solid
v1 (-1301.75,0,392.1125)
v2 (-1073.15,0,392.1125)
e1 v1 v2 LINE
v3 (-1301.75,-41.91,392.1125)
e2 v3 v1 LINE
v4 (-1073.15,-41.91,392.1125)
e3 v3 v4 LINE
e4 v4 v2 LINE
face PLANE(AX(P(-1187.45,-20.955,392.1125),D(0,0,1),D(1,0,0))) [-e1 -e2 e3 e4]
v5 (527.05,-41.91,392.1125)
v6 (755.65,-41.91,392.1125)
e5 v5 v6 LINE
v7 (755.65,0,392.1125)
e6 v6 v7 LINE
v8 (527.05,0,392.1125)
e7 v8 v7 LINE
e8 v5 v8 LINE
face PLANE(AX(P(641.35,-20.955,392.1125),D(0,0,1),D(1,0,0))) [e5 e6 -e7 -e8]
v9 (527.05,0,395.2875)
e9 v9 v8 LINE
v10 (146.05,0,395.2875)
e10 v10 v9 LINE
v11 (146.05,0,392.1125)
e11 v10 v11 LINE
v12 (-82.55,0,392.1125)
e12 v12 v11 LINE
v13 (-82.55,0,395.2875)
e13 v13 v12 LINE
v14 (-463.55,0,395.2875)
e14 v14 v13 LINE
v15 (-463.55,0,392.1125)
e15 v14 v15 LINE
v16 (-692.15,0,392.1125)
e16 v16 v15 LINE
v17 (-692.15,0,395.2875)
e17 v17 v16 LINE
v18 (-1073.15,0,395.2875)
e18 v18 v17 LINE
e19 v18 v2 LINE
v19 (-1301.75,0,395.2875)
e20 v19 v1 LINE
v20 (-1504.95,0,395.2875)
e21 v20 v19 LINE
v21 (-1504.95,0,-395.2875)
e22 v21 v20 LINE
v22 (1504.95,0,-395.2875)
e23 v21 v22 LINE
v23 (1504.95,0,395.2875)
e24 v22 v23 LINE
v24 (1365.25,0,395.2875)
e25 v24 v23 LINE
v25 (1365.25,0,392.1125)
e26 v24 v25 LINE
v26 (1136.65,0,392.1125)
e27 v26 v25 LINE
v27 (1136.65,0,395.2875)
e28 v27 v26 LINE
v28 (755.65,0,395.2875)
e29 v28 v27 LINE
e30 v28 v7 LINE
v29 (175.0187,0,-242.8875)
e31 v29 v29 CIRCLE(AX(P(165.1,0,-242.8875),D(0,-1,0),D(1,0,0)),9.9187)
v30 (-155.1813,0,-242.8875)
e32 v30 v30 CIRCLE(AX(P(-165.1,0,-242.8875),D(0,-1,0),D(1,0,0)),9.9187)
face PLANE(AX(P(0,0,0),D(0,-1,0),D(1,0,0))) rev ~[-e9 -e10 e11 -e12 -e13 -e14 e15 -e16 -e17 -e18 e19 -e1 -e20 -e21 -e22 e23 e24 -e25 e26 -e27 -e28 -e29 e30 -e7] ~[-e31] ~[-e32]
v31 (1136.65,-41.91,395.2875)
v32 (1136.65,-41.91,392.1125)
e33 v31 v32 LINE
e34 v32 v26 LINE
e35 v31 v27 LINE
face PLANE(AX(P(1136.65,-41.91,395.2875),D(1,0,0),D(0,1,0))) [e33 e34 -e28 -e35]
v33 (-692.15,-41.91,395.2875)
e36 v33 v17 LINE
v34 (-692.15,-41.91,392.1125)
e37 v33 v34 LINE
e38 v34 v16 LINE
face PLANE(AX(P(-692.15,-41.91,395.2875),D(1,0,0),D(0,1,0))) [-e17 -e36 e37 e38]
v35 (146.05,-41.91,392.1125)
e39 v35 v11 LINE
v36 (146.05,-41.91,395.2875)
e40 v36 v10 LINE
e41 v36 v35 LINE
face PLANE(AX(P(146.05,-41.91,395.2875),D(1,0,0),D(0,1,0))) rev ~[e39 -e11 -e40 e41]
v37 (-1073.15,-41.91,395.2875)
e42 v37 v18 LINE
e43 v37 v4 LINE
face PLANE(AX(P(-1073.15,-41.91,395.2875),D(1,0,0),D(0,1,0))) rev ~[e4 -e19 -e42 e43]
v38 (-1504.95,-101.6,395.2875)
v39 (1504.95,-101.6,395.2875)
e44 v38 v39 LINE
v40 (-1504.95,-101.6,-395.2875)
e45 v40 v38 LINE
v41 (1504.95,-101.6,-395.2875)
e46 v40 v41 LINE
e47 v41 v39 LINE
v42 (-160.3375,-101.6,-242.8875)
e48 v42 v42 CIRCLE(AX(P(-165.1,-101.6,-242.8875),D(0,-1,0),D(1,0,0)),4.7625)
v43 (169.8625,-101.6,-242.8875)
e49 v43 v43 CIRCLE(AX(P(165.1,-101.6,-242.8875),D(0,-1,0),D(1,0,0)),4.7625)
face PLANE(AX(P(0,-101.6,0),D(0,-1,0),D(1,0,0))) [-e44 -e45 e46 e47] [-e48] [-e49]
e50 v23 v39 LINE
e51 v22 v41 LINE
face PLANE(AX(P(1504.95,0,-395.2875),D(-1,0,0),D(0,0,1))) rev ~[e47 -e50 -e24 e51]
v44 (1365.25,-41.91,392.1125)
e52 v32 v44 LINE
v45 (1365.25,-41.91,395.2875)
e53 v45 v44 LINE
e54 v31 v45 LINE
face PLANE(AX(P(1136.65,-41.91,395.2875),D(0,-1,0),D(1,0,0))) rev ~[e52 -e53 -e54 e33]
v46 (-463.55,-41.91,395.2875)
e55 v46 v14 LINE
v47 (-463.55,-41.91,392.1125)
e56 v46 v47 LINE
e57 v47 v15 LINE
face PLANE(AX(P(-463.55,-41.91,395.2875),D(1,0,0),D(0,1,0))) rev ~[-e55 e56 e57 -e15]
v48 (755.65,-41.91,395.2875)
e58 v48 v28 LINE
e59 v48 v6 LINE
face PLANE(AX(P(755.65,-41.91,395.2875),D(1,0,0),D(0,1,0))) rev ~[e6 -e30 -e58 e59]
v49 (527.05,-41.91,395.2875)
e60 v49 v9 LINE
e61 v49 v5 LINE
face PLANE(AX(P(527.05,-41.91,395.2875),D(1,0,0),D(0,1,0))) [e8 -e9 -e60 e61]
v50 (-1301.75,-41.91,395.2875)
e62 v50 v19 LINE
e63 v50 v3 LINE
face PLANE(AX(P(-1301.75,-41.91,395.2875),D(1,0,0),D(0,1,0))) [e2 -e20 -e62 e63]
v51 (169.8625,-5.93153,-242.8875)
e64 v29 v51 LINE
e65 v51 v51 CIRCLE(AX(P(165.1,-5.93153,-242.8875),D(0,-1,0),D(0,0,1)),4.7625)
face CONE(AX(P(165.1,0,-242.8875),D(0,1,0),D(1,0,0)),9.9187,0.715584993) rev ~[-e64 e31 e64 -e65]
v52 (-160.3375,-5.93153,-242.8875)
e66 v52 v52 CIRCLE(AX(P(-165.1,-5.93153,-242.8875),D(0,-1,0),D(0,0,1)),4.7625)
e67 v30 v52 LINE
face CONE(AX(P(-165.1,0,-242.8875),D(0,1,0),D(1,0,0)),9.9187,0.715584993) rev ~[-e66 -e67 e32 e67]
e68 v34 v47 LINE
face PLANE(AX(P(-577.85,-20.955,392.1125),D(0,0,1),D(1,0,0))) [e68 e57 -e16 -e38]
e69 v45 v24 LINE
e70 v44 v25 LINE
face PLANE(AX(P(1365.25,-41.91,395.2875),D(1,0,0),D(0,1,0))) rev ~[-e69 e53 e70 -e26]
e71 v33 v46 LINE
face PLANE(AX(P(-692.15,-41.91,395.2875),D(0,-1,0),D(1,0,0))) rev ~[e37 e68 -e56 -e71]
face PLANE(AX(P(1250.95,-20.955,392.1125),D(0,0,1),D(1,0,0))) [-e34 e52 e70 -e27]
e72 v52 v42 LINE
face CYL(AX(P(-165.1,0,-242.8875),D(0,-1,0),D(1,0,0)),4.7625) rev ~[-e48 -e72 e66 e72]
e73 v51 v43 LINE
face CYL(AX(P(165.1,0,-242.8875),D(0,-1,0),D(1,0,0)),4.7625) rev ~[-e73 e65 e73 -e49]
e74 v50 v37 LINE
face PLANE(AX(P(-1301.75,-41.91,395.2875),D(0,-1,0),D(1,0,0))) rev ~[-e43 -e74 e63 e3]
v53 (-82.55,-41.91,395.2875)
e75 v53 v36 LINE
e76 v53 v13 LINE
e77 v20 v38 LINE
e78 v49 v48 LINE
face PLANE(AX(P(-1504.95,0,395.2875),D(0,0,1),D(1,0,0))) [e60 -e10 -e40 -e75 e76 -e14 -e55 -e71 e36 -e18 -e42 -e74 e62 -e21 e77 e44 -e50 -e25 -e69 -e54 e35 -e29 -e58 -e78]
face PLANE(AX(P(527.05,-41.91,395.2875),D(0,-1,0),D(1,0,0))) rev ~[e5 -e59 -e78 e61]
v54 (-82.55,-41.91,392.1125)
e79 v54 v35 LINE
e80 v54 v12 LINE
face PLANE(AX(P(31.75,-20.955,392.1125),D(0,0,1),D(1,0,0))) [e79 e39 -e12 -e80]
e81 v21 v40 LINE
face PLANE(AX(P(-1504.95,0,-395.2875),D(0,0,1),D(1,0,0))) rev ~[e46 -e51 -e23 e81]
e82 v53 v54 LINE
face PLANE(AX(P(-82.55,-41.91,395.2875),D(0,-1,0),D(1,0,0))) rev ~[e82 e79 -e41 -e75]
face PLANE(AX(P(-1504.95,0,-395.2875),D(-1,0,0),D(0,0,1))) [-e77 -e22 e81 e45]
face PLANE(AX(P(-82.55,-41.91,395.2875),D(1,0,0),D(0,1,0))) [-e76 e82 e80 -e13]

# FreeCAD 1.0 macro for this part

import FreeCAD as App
import Part
import Sketcher

V = App.Vector
Q = App.Units.Quantity


def add_polygon(sketch, points):
    """Adds a closed chain of lines whose ends are joined by coincident constraints."""
    first, n = sketch.GeometryCount, len(points)
    for a, b in zip(points, points[1:] + points[:1]):
        sketch.addGeometry(Part.LineSegment(App.Vector(*a, 0), App.Vector(*b, 0)), False)
    for i in range(n):
        sketch.addConstraint(Sketcher.Constraint("Coincident", first + i, 2, first + (i + 1) % n, 1))

doc = App.newDocument("Part")
body = doc.addObject("PartDesign::Body", "Body")

# Sketch on XZ plane
sketch1 = body.newObject("Sketcher::SketchObject", "Sketch")
sketch1.AttachmentSupport = (doc.getObject("XZ_Plane"), [""])
sketch1.MapMode = "FlatFace"
add_polygon(sketch1, [(-1505, 395), (-1505, -395), (1505, -395), (1505, 395)])  # lines 0-3
sketch1.addConstraint([
    Sketcher.Constraint("Vertical", 0),
    Sketcher.Constraint("Horizontal", 1),
    Sketcher.Constraint("Vertical", 2),
    Sketcher.Constraint("Horizontal", 3),
    Sketcher.Constraint("Symmetric", 0, 2, 2, 2, -1, 1),
    Sketcher.Constraint("DistanceX", 1, 1, 1, 2, Q("118.5 in")),
    Sketcher.Constraint("DistanceY", 0, 2, 0, 1, Q("31.125 in")),
])
pad1 = body.newObject("PartDesign::Pad", "Pad")
pad1.Profile = sketch1
pad1.Length = Q("4 in")

# Sketch on XY plane
sketch2 = body.newObject("Sketcher::SketchObject", "Sketch001")
sketch2.AttachmentSupport = (doc.getObject("XY_Plane"), [""])
sketch2.MapMode = "FlatFace"
sketch2.AttachmentOffset = App.Placement(V(0, 0, 15.5625 * 25.4), App.Rotation())
add_polygon(sketch2, [(-1302, 0), (-1302, -42), (-1073, -42), (-1073, 0)])  # lines 0-3
add_polygon(sketch2, [(-692, 0), (-692, -42), (-464, -42), (-464, 0)])  # lines 4-7
add_polygon(sketch2, [(-83, 0), (-83, -42), (146, -42), (146, 0)])  # lines 8-11
add_polygon(sketch2, [(527, 0), (527, -42), (756, -42), (756, 0)])  # lines 12-15
add_polygon(sketch2, [(1137, 0), (1137, -42), (1365, -42), (1365, 0)])  # lines 16-19
sketch2.addConstraint([
    Sketcher.Constraint("Vertical", 0),
    Sketcher.Constraint("Horizontal", 1),
    Sketcher.Constraint("Vertical", 2),
    Sketcher.Constraint("Horizontal", 3),
    Sketcher.Constraint("Vertical", 4),
    Sketcher.Constraint("Horizontal", 5),
    Sketcher.Constraint("Vertical", 6),
    Sketcher.Constraint("Horizontal", 7),
    Sketcher.Constraint("Vertical", 8),
    Sketcher.Constraint("Horizontal", 9),
    Sketcher.Constraint("Vertical", 10),
    Sketcher.Constraint("Horizontal", 11),
    Sketcher.Constraint("Vertical", 12),
    Sketcher.Constraint("Horizontal", 13),
    Sketcher.Constraint("Vertical", 14),
    Sketcher.Constraint("Horizontal", 15),
    Sketcher.Constraint("Vertical", 16),
    Sketcher.Constraint("Horizontal", 17),
    Sketcher.Constraint("Vertical", 18),
    Sketcher.Constraint("Horizontal", 19),
    Sketcher.Constraint("PointOnObject", 2, 2, -1),
    Sketcher.Constraint("PointOnObject", 6, 2, -1),
    Sketcher.Constraint("PointOnObject", 10, 2, -1),
    Sketcher.Constraint("PointOnObject", 14, 2, -1),
    Sketcher.Constraint("PointOnObject", 18, 2, -1),
    Sketcher.Constraint("Horizontal", 1, 2, 4, 2),
    Sketcher.Constraint("Horizontal", 5, 2, 8, 2),
    Sketcher.Constraint("Horizontal", 9, 2, 12, 2),
    Sketcher.Constraint("Horizontal", 13, 2, 16, 2),
    Sketcher.Constraint("Equal", 3, 5),
    Sketcher.Constraint("Equal", 7, 9),
    Sketcher.Constraint("Equal", 11, 13),
    Sketcher.Constraint("Equal", 15, 17),
    Sketcher.Constraint("DistanceX", 1, 1, 1, 2, Q("9 in")),
    Sketcher.Constraint("DistanceX", 1, 2, 4, 2, Q("15 in")),
    Sketcher.Constraint("DistanceX", 5, 2, 8, 2, Q("15 in")),
    Sketcher.Constraint("DistanceX", 9, 2, 12, 2, Q("15 in")),
    Sketcher.Constraint("DistanceX", 13, 2, 16, 2, Q("15 in")),
    Sketcher.Constraint("DistanceY", 0, 2, 0, 1, Q("1.65 in")),
    Sketcher.Constraint("DistanceX", 0, 2, -1, 1, Q("51.25 in")),
])
pocket1 = body.newObject("PartDesign::Pocket", "Pocket")
pocket1.Profile = sketch2
pocket1.Length = Q("0.125 in")

# Sketch on XZ plane
sketch3 = body.newObject("Sketcher::SketchObject", "Sketch002")
sketch3.AttachmentSupport = (doc.getObject("XZ_Plane"), [""])
sketch3.MapMode = "FlatFace"
sketch3.addGeometry([
    Part.Circle(V(165.1, -242.9, 0), V(0, 0, 1), 4.8),
    Part.Circle(V(-165.1, -242.9, 0), V(0, 0, 1), 4.8),
], False)
sketch3.addConstraint([
    Sketcher.Constraint("Equal", 0, 1),
    Sketcher.Constraint("Symmetric", 0, 3, 1, 3, -2),
    Sketcher.Constraint("Diameter", 0, Q("0.375 in")),
    Sketcher.Constraint("DistanceX", 1, 3, 0, 3, Q("13 in")),
    Sketcher.Constraint("DistanceY", 0, 3, -1, 1, Q("9.5625 in")),
])
doc.recompute()
hole = body.newObject("PartDesign::Hole", "Hole")
hole.Profile = sketch3
hole.ThreadType = "None"
hole.Diameter = Q("0.375 in")
hole.DepthType = "ThroughAll"
hole.HoleCutType = "Countersink"
hole.HoleCutDiameter = Q("0.781 in")
hole.HoleCutCountersinkAngle = 82
hole.Reversed = True

doc.recompute()
